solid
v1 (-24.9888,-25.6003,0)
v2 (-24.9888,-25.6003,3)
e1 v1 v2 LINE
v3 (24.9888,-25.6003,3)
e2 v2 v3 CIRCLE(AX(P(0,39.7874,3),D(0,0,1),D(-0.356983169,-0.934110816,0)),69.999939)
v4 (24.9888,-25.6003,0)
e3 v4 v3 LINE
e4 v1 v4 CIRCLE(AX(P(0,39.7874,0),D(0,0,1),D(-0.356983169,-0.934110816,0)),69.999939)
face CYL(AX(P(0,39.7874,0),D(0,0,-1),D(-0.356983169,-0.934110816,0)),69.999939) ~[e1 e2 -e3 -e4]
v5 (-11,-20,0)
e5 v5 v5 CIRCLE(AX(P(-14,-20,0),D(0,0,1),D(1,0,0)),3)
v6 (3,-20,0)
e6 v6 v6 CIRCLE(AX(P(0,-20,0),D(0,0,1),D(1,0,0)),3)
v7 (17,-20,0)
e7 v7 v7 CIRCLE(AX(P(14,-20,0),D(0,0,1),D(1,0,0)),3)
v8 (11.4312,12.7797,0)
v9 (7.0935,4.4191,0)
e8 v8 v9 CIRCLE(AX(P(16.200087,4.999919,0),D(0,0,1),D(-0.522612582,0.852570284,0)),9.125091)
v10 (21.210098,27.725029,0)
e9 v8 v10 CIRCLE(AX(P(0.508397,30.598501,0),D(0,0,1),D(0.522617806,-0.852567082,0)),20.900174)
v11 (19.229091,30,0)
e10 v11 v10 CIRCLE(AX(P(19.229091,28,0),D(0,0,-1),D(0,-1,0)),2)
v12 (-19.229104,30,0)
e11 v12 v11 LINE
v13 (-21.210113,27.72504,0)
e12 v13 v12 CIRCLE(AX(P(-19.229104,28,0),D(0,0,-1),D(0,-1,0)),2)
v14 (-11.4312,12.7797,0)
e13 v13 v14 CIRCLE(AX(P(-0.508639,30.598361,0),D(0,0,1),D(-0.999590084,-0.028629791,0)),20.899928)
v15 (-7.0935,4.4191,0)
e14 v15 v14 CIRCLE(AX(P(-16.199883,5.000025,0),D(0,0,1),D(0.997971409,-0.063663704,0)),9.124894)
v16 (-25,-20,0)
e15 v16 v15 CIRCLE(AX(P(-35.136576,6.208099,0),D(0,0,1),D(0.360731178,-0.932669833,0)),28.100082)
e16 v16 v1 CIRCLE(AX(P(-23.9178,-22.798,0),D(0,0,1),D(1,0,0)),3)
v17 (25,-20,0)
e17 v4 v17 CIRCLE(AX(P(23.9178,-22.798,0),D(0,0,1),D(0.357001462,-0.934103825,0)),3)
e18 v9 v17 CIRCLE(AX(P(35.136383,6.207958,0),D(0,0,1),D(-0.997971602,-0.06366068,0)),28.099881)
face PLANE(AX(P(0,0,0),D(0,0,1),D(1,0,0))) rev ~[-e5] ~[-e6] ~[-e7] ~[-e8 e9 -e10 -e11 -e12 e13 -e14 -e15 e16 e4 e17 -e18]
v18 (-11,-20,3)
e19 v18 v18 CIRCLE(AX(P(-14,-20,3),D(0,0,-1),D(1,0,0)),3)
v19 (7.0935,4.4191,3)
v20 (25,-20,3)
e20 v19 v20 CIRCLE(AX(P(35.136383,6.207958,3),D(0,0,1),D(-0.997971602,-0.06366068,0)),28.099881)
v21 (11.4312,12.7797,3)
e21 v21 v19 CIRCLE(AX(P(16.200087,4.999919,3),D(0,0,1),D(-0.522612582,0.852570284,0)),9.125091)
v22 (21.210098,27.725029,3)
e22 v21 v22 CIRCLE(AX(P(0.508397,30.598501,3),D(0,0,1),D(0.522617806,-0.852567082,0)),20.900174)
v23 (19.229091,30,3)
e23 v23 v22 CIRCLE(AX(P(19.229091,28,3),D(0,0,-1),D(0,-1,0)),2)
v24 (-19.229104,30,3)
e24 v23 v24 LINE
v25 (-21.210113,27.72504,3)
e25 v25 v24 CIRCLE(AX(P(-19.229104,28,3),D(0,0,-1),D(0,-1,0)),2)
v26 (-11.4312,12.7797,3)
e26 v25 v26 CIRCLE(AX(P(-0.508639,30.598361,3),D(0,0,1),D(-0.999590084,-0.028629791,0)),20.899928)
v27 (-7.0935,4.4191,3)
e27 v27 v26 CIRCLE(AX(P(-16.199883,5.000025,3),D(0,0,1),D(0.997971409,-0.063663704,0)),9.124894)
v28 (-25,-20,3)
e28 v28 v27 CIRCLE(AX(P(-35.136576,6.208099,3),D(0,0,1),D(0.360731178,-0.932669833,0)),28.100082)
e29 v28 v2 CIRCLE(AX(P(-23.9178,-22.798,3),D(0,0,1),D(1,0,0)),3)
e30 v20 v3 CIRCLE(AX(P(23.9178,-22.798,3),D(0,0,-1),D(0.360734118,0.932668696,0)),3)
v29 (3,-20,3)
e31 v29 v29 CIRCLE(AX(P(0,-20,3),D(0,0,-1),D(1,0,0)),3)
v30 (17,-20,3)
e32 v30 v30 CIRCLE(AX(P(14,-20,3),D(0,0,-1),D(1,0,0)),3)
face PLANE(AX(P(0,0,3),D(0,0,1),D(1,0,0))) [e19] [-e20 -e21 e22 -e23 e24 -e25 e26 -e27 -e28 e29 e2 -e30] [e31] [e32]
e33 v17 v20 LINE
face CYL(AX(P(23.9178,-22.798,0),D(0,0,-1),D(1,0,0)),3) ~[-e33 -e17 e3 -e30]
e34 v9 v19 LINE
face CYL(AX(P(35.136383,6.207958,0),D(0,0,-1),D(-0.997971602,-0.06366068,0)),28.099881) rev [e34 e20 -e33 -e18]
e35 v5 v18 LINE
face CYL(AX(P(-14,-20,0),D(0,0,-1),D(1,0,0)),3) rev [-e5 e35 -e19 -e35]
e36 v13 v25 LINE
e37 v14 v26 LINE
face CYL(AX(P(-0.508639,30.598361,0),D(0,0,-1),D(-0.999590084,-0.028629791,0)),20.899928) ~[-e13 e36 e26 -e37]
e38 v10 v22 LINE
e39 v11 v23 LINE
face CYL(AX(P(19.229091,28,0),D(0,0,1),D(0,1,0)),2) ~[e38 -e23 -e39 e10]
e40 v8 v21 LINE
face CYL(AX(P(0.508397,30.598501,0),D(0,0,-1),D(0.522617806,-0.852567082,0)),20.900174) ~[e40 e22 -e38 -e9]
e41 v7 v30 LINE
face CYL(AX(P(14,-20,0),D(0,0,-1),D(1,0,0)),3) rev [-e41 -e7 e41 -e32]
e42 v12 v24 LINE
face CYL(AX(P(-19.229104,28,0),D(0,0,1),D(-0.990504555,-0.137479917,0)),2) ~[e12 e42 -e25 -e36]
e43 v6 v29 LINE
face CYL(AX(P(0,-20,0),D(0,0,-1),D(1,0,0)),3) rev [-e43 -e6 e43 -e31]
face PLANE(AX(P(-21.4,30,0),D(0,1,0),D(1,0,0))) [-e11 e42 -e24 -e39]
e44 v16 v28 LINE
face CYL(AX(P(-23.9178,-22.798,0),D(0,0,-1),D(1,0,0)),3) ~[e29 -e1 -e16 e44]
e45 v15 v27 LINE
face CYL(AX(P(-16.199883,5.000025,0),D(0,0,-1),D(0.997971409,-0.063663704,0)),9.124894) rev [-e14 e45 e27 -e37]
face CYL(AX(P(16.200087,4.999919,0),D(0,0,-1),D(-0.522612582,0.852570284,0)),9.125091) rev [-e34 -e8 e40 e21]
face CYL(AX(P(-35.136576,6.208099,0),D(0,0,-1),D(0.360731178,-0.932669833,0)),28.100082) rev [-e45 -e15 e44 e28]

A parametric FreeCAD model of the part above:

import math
import FreeCAD as App
import Part
import Sketcher

V = App.Vector
Q = App.Units.Quantity


def edges_at(feature, points):
    """Names of the edges that pass closest to the given points."""
    edges = feature.Shape.Edges
    near = lambda p: min(range(len(edges)), key=lambda i: edges[i].distToShape(Part.Vertex(*p))[0])
    return sorted({f"Edge{near(p) + 1}" for p in points})

doc = App.newDocument("Part")
body = doc.addObject("PartDesign::Body", "Body")

# Sketch on XY plane
sketch1 = body.newObject("Sketcher::SketchObject", "Sketch")
sketch1.AttachmentSupport = (doc.getObject("XY_Plane"), [""])
sketch1.MapMode = "FlatFace"
sketch1.addGeometry([
    Part.ArcOfCircle(Part.Circle(V(0, 39.8, 0), V(0, 0, 1), 70), math.radians(-111), math.radians(-69)),  # 0
    Part.ArcOfCircle(Part.Circle(V(23.9, -22.8, 0), V(0, 0, 1), 3), math.radians(-69), math.radians(69)),  # 1
    Part.ArcOfCircle(Part.Circle(V(35.1, 6.2, 0), V(0, 0, 1), 28.1), math.radians(-176), math.radians(-111)),  # 2
    Part.ArcOfCircle(Part.Circle(V(16.2, 5, 0), V(0, 0, 1), 9.1), math.radians(122), math.radians(184)),  # 3
    Part.ArcOfCircle(Part.Circle(V(0.5, 30.6, 0), V(0, 0, 1), 20.9), math.radians(-58), math.radians(-2)),  # 4
    Part.LineSegment(V(21.4, 30, 0), V(-21.4, 30, 0)),  # 5
    Part.ArcOfCircle(Part.Circle(V(-0.5, 30.6, 0), V(0, 0, 1), 20.9), math.radians(-178), math.radians(-122)),  # 6
    Part.ArcOfCircle(Part.Circle(V(-16.2, 5, 0), V(0, 0, 1), 9.1), math.radians(-4), math.radians(58)),  # 7
    Part.ArcOfCircle(Part.Circle(V(-35.1, 6.2, 0), V(0, 0, 1), 28.1), math.radians(-69), math.radians(-4)),  # 8
    Part.ArcOfCircle(Part.Circle(V(-23.9, -22.8, 0), V(0, 0, 1), 3), math.radians(111), math.radians(249)),  # 9
    Part.Circle(V(-14, -20, 0), V(0, 0, 1), 3),  # 10
    Part.Circle(V(0, -20, 0), V(0, 0, 1), 3),  # 11
    Part.Circle(V(14, -20, 0), V(0, 0, 1), 3),  # 12
], False)
sketch1.addConstraint([
    Sketcher.Constraint("Tangent", 0, 2, 1, 1),
    Sketcher.Constraint("Tangent", 1, 2, 2, 2),
    Sketcher.Constraint("Tangent", 2, 1, 3, 2),
    Sketcher.Constraint("Tangent", 3, 1, 4, 1),
    Sketcher.Constraint("Coincident", 4, 2, 5, 1),
    Sketcher.Constraint("Coincident", 5, 2, 6, 1),
    Sketcher.Constraint("Tangent", 6, 2, 7, 2),
    Sketcher.Constraint("Tangent", 7, 1, 8, 2),
    Sketcher.Constraint("Tangent", 8, 1, 9, 1),
    Sketcher.Constraint("Tangent", 9, 2, 0, 1),
    Sketcher.Constraint("Horizontal", 5),
    Sketcher.Constraint("Equal", 4, 6),
    Sketcher.Constraint("Equal", 3, 7),
    Sketcher.Constraint("Equal", 2, 8),
    Sketcher.Constraint("Equal", 1, 9),
    Sketcher.Constraint("Equal", 9, 10),
    Sketcher.Constraint("Equal", 10, 11),
    Sketcher.Constraint("Equal", 11, 12),
    Sketcher.Constraint("Symmetric", 4, 3, 6, 3, -2),
    Sketcher.Constraint("Symmetric", 2, 3, 8, 3, -2),
    Sketcher.Constraint("Symmetric", 10, 3, 12, 3, -2),
    Sketcher.Constraint("PointOnObject", 0, 3, -2),
    Sketcher.Constraint("PointOnObject", 11, 3, -2),
    Sketcher.Constraint("Horizontal", 10, 3, 11, 3),
    Sketcher.Constraint("Horizontal", 12, 3, 1, 2),
    Sketcher.Constraint("Diameter", 10, Q("6 mm")),
    Sketcher.Constraint("Radius", 0, Q("70 mm")),
    Sketcher.Constraint("Radius", 4, Q("20.9 mm")),
    Sketcher.Constraint("DistanceX", 10, 3, -1, 1, Q("14 mm")),
    Sketcher.Constraint("DistanceY", 10, 3, -1, 1, Q("20 mm")),
    Sketcher.Constraint("DistanceX", -1, 1, 1, 2, Q("25 mm")),
    Sketcher.Constraint("DistanceY", -1, 1, 4, 2, Q("30 mm")),
    Sketcher.Constraint("Radius", 3, Q("9.125 mm")),
    Sketcher.Constraint("DistanceY", 10, 3, 7, 3, Q("25 mm")),
    Sketcher.Constraint("DistanceX", -1, 1, 4, 2, Q("21.4 mm")),
    Sketcher.Constraint("Radius", 2, Q("28.1 mm")),
    Sketcher.Constraint("DistanceX", -1, 1, 3, 3, Q("16.2 mm")),
])
pad1 = body.newObject("PartDesign::Pad", "Pad")
pad1.Profile = sketch1
pad1.Length = 3
doc.recompute()

fillet = body.newObject("PartDesign::Fillet", "Fillet")
fillet.Base = (pad1, edges_at(pad1, [(21.4, 30, 1.5), (-21.4, 30, 1.5)]))
fillet.Radius = 2

doc.recompute()
